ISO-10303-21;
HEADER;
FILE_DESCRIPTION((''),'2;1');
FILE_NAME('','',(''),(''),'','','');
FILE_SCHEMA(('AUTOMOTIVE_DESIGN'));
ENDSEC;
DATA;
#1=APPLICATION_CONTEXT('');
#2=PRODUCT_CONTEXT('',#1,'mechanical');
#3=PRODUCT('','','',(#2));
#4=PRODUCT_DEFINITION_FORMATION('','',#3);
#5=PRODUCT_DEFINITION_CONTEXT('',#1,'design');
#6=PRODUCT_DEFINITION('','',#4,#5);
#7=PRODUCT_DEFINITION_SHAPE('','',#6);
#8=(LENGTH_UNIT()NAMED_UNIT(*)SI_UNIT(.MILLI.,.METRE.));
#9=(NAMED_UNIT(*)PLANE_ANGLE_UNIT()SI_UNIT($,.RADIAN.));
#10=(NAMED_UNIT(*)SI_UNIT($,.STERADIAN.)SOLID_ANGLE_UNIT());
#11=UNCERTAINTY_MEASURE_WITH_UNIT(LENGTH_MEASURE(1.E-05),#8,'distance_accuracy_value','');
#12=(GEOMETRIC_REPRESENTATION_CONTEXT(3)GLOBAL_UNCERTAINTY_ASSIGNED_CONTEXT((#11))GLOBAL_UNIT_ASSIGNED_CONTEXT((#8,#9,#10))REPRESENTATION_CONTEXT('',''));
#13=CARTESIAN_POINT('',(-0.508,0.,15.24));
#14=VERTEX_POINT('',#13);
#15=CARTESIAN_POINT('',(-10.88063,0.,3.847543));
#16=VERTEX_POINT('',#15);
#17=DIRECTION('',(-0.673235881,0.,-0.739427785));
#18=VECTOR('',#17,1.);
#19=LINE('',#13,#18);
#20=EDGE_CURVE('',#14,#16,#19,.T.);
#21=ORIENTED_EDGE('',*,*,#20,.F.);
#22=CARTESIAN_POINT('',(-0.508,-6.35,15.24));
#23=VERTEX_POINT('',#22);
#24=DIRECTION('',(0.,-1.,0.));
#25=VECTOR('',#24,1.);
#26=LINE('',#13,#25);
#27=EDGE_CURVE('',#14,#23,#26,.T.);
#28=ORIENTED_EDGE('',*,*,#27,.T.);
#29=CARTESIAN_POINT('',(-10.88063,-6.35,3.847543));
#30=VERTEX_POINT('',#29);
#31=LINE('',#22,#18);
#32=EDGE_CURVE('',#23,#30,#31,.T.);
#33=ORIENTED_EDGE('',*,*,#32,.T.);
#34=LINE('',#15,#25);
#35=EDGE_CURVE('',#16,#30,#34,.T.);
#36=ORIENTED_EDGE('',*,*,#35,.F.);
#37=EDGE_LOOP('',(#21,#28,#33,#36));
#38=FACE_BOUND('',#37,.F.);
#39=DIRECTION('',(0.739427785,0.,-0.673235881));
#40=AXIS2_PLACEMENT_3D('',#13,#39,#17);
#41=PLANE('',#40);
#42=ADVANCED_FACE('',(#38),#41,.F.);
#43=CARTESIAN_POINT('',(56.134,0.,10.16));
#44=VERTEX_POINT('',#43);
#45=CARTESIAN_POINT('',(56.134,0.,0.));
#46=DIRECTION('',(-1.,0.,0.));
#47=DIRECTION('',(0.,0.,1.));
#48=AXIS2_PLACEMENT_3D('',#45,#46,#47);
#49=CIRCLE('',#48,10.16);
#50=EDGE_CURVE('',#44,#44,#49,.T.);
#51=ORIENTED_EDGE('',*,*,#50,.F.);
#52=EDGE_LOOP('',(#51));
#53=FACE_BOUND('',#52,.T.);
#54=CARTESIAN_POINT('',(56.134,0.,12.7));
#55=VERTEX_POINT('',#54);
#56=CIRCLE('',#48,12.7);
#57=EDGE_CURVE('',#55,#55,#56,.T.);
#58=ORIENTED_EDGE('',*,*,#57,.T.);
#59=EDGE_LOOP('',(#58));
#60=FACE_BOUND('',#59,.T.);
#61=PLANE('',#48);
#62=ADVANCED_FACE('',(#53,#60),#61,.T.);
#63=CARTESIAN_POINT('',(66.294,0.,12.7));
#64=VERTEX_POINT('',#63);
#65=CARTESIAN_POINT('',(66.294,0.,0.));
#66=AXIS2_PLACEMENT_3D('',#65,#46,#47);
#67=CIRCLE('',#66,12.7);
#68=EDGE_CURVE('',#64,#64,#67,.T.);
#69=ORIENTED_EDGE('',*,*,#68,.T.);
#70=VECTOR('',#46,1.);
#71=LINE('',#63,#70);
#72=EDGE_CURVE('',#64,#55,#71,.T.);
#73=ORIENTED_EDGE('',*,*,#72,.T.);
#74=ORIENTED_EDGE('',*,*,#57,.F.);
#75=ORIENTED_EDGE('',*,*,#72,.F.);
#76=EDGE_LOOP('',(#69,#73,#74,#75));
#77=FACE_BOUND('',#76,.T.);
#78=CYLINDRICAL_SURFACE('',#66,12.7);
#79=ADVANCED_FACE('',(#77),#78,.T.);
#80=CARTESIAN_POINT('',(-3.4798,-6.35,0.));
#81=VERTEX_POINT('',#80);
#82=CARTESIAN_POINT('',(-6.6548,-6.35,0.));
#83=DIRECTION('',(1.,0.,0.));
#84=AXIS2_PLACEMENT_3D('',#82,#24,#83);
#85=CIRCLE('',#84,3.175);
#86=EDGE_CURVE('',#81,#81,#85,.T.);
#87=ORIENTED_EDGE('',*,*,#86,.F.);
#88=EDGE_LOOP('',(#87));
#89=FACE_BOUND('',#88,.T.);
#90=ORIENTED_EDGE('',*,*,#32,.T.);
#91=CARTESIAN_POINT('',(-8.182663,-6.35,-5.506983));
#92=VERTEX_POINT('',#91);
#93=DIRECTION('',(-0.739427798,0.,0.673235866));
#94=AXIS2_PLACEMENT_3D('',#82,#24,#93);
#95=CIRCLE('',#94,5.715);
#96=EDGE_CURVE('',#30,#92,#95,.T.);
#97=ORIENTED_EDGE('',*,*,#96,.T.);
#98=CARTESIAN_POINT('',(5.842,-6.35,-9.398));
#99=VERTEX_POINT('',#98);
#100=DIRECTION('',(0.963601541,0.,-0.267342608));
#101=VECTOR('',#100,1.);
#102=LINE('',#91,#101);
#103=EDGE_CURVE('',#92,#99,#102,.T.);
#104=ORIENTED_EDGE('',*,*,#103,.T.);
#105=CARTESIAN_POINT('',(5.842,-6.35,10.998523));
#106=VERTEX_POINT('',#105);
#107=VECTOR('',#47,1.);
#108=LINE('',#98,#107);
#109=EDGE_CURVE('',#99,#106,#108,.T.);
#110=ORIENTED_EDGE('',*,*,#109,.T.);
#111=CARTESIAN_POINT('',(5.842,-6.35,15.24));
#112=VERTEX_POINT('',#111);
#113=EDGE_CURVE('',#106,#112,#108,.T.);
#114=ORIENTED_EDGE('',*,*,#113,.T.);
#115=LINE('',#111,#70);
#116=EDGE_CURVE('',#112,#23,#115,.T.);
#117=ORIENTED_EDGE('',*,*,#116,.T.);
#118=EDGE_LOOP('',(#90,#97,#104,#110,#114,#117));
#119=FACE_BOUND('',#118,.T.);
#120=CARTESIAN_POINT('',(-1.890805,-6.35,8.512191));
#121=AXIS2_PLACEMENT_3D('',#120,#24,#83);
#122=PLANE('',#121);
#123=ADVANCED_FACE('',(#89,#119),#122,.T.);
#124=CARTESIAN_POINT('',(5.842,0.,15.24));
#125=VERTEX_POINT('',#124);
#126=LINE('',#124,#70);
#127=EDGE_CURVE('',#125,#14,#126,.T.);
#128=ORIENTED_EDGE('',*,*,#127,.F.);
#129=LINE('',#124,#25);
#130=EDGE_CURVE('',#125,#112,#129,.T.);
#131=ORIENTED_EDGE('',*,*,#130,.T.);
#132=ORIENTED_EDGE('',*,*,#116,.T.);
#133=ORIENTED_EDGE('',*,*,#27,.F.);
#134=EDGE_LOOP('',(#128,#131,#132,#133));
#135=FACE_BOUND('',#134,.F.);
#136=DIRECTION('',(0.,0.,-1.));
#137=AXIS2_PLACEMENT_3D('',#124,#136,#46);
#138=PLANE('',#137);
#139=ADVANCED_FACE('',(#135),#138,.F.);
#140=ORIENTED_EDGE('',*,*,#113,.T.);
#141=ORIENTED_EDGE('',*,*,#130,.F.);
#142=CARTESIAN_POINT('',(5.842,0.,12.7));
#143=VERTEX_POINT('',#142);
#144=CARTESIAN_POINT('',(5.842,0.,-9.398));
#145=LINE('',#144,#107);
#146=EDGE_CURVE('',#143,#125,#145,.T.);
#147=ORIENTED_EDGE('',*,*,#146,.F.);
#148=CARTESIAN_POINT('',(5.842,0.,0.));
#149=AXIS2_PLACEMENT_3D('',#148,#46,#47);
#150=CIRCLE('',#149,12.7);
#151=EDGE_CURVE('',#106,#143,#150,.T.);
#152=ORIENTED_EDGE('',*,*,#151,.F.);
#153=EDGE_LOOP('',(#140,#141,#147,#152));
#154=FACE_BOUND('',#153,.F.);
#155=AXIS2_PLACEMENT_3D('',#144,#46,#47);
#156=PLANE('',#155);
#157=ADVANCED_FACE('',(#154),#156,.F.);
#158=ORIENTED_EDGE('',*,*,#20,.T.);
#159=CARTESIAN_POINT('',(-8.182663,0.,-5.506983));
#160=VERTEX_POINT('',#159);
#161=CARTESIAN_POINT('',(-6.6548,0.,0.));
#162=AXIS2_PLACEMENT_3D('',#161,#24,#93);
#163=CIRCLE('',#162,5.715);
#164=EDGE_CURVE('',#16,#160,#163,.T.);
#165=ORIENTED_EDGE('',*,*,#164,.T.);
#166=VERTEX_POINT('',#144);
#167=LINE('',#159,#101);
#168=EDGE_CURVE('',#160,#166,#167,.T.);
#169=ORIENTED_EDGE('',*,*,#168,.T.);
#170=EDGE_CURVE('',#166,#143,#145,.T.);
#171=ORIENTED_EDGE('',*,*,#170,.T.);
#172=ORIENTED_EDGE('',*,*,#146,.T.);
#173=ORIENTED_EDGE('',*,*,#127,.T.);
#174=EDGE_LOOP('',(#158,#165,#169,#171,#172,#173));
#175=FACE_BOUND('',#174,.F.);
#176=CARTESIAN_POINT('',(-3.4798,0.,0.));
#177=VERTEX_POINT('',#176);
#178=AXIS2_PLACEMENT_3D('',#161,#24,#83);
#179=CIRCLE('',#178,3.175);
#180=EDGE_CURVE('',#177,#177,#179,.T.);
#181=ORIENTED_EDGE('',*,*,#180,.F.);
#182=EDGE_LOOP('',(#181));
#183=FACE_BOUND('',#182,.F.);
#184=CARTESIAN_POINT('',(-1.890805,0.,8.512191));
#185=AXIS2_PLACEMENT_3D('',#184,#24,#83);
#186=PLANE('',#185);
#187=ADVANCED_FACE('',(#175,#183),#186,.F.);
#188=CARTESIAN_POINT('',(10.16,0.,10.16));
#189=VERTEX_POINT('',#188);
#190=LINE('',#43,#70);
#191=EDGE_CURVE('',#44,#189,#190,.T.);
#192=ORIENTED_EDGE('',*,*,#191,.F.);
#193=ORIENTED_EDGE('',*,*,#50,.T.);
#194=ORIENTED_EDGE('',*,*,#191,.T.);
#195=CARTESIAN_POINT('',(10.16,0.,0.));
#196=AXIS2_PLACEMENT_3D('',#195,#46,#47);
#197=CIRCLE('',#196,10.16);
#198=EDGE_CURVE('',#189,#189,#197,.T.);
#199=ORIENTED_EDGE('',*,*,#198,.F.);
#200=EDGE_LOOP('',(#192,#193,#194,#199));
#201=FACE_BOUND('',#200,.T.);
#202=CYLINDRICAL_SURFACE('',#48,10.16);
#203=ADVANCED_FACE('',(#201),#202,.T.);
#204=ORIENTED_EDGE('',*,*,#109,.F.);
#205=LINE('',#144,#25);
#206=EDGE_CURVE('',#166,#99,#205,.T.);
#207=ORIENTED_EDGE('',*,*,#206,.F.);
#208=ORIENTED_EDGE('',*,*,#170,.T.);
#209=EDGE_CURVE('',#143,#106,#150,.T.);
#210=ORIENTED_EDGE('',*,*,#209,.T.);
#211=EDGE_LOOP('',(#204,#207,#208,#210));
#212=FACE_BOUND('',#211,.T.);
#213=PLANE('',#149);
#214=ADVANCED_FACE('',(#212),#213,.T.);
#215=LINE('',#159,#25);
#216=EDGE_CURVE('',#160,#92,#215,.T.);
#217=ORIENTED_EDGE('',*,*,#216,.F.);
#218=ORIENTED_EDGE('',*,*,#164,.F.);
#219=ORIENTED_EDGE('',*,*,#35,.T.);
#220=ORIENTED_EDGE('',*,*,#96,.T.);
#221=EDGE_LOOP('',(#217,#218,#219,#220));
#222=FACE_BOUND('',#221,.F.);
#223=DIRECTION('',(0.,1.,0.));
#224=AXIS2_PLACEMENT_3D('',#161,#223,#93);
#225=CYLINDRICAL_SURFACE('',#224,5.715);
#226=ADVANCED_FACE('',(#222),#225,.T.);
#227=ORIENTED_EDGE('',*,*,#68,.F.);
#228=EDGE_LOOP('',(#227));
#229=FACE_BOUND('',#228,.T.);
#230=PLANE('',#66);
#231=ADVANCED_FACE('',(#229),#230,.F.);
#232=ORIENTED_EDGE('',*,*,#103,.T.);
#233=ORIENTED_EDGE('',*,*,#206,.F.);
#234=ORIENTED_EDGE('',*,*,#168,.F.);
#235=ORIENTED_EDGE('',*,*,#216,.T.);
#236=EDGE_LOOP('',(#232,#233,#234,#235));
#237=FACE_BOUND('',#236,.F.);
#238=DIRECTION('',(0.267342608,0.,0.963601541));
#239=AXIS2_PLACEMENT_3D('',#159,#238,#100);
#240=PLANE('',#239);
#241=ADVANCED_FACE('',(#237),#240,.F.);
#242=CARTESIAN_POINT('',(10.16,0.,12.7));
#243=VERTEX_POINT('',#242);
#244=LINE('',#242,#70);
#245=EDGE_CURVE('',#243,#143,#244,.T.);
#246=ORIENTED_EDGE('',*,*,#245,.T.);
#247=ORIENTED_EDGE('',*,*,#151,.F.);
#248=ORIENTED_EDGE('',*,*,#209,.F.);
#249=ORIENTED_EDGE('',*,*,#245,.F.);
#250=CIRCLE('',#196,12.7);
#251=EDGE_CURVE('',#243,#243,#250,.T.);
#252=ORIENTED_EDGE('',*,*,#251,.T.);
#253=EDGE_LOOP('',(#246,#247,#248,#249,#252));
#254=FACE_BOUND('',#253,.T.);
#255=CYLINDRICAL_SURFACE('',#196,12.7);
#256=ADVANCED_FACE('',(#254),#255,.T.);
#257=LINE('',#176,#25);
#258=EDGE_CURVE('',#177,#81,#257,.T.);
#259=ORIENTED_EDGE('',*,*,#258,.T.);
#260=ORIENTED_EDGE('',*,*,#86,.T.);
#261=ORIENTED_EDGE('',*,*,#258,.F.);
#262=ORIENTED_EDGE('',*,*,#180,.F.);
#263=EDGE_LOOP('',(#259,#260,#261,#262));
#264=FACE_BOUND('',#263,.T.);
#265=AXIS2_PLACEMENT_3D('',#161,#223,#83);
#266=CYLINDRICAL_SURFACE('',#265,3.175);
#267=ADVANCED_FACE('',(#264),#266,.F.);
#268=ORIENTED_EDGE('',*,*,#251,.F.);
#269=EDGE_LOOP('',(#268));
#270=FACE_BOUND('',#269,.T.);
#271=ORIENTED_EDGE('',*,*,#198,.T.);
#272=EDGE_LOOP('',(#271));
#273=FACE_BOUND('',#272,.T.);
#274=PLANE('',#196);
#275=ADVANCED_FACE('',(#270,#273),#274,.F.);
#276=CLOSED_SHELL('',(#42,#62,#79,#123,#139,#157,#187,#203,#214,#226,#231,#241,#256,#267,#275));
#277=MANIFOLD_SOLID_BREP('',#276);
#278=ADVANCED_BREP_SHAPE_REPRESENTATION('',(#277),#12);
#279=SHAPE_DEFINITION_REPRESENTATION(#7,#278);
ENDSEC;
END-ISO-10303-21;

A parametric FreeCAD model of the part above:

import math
import FreeCAD as App
import Part
import Sketcher

V = App.Vector
Q = App.Units.Quantity

doc = App.newDocument("Part")
params = doc.addObject("Spreadsheet::Sheet", "Params")
for row, (alias, value) in enumerate([
    ("sketch1_width", "0.4 in"),
    ("sketch1_height", "0.5 in"),
    ("sketch1_height2", "0.1 in"),
    ("sketch1_width2", "2.38 in"),
    ("sketch1_width3", "1.81 in"),
    ("revolution_angle", "360 deg"),
    ("sketch2_diameter", "0.25 in"),
    ("sketch2_radius", "0.225 in"),
    ("sketch2_width", "0.25 in"),
    ("sketch2_height", "0.97 in"),
    ("pad1_length", "0.25 in"),
], start=1):
    params.set(f"A{row}", alias)
    params.set(f"B{row}", "=" + value)
    params.setAlias(f"B{row}", alias)

body = doc.addObject("PartDesign::Body", "Body")

# Sketch on XZ plane
sketch1 = doc.addObject("Sketcher::SketchObject", "Sketch")
body.addObject(sketch1)
sketch1.AttachmentSupport = (doc.XZ_Plane, [""])
sketch1.MapMode = "FlatFace"
sketch1.addGeometry(Part.LineSegment(V(5.8, 12.7, 0), V(5.8, 0, 0)), False)
sketch1.addGeometry(Part.LineSegment(V(5.8, 0, 0), V(66.3, 0, 0)), False)
sketch1.addGeometry(Part.LineSegment(V(66.3, 0, 0), V(66.3, 12.7, 0)), False)
sketch1.addGeometry(Part.LineSegment(V(66.3, 12.7, 0), V(56.1, 12.7, 0)), False)
sketch1.addGeometry(Part.LineSegment(V(56.1, 12.7, 0), V(56.1, 10.2, 0)), False)
sketch1.addGeometry(Part.LineSegment(V(56.1, 10.2, 0), V(10.2, 10.2, 0)), False)
sketch1.addGeometry(Part.LineSegment(V(10.2, 10.2, 0), V(10.2, 12.7, 0)), False)
sketch1.addGeometry(Part.LineSegment(V(10.2, 12.7, 0), V(5.8, 12.7, 0)), False)
sketch1.addConstraint(Sketcher.Constraint("Coincident", 0, 2, 1, 1))
sketch1.addConstraint(Sketcher.Constraint("Coincident", 1, 2, 2, 1))
sketch1.addConstraint(Sketcher.Constraint("Coincident", 2, 2, 3, 1))
sketch1.addConstraint(Sketcher.Constraint("Coincident", 3, 2, 4, 1))
sketch1.addConstraint(Sketcher.Constraint("Coincident", 4, 2, 5, 1))
sketch1.addConstraint(Sketcher.Constraint("Coincident", 5, 2, 6, 1))
sketch1.addConstraint(Sketcher.Constraint("Coincident", 6, 2, 7, 1))
sketch1.addConstraint(Sketcher.Constraint("Coincident", 7, 2, 0, 1))
sketch1.addConstraint(Sketcher.Constraint("Vertical", 0))
sketch1.addConstraint(Sketcher.Constraint("Horizontal", 1))
sketch1.addConstraint(Sketcher.Constraint("Vertical", 2))
sketch1.addConstraint(Sketcher.Constraint("Horizontal", 3))
sketch1.addConstraint(Sketcher.Constraint("Vertical", 4))
sketch1.addConstraint(Sketcher.Constraint("Horizontal", 5))
sketch1.addConstraint(Sketcher.Constraint("Vertical", 6))
sketch1.addConstraint(Sketcher.Constraint("Horizontal", 7))
sketch1.addConstraint(Sketcher.Constraint("PointOnObject", 0, 2, -1))
sketch1.addConstraint(Sketcher.Constraint("Horizontal", 3, 2, 6, 2))
sketch1.addConstraint(Sketcher.Constraint("DistanceX", 3, 2, 3, 1, Q("0.4 in")))
sketch1.addConstraint(Sketcher.Constraint("DistanceY", 0, 2, 0, 1, Q("0.5 in")))
sketch1.addConstraint(Sketcher.Constraint("DistanceY", 4, 2, 4, 1, Q("0.1 in")))
sketch1.addConstraint(Sketcher.Constraint("DistanceX", 1, 1, 1, 2, Q("2.38 in")))
sketch1.addConstraint(Sketcher.Constraint("DistanceX", 5, 2, 5, 1, Q("1.81 in")))
sketch1.addConstraint(Sketcher.Constraint("DistanceX", -1, 1, 5, 2, Q("0.4 in")))
sketch1.setExpression("Constraints[18]", "Params.sketch1_width")
sketch1.setExpression("Constraints[19]", "Params.sketch1_height")
sketch1.setExpression("Constraints[20]", "Params.sketch1_height2")
sketch1.setExpression("Constraints[21]", "Params.sketch1_width2")
sketch1.setExpression("Constraints[22]", "Params.sketch1_width3")
revolution = doc.addObject("PartDesign::Revolution", "Revolution")
body.addObject(revolution)
revolution.Profile = sketch1
revolution.ReferenceAxis = (sketch1, ["H_Axis"])
revolution.setExpression("Angle", "Params.revolution_angle")

# Sketch on XZ plane
sketch2 = doc.addObject("Sketcher::SketchObject", "Sketch001")
body.addObject(sketch2)
sketch2.AttachmentSupport = (doc.XZ_Plane, [""])
sketch2.MapMode = "FlatFace"
sketch2.addGeometry(Part.LineSegment(V(5.8, 15.2, 0), V(-0.5, 15.2, 0)), False)
sketch2.addGeometry(Part.LineSegment(V(-0.5, 15.2, 0), V(-10.9, 3.8, 0)), False)
sketch2.addGeometry(Part.ArcOfCircle(Part.Circle(V(-6.7, 0, 0), V(0, 0, 1), 5.7), math.radians(138), math.radians(254)), False)
sketch2.addGeometry(Part.LineSegment(V(-8.2, -5.5, 0), V(5.8, -9.4, 0)), False)
sketch2.addGeometry(Part.LineSegment(V(5.8, -9.4, 0), V(5.8, 15.2, 0)), False)
sketch2.addGeometry(Part.Circle(V(-6.7, 0, 0), V(0, 0, 1), 3.2), False)
sketch2.addConstraint(Sketcher.Constraint("Coincident", 0, 2, 1, 1))
sketch2.addConstraint(Sketcher.Constraint("Tangent", 1, 2, 2, 1))
sketch2.addConstraint(Sketcher.Constraint("Tangent", 2, 2, 3, 1))
sketch2.addConstraint(Sketcher.Constraint("Coincident", 3, 2, 4, 1))
sketch2.addConstraint(Sketcher.Constraint("Coincident", 4, 2, 0, 1))
sketch2.addConstraint(Sketcher.Constraint("Horizontal", 0))
sketch2.addConstraint(Sketcher.Constraint("Vertical", 4))
sketch2.addConstraint(Sketcher.Constraint("Coincident", 5, 3, 2, 3))
sketch2.addConstraint(Sketcher.Constraint("PointOnObject", 2, 3, -1))
sketch2.addConstraint(Sketcher.Constraint("Diameter", 5, Q("0.25 in")))
sketch2.addConstraint(Sketcher.Constraint("Radius", 2, Q("0.225 in")))
sketch2.addConstraint(Sketcher.Constraint("DistanceX", 0, 2, 0, 1, Q("0.25 in")))
sketch2.addConstraint(Sketcher.Constraint("DistanceY", 4, 1, 4, 2, Q("0.97 in")))
sketch2.addConstraint(Sketcher.Constraint("DistanceY", -1, 1, 0, 2, Q("0.6 in")))
sketch2.addConstraint(Sketcher.Constraint("DistanceX", 0, 2, -1, 1, Q("0.02 in")))
sketch2.addConstraint(Sketcher.Constraint("DistanceX", 2, 3, -1, 1, Q("0.262 in")))
sketch2.setExpression("Constraints[9]", "Params.sketch2_diameter")
sketch2.setExpression("Constraints[10]", "Params.sketch2_radius")
sketch2.setExpression("Constraints[11]", "Params.sketch2_width")
sketch2.setExpression("Constraints[12]", "Params.sketch2_height")
pad1 = doc.addObject("PartDesign::Pad", "Pad")
body.addObject(pad1)
pad1.Profile = sketch2
pad1.setExpression("Length", "Params.pad1_length")

doc.recompute()
